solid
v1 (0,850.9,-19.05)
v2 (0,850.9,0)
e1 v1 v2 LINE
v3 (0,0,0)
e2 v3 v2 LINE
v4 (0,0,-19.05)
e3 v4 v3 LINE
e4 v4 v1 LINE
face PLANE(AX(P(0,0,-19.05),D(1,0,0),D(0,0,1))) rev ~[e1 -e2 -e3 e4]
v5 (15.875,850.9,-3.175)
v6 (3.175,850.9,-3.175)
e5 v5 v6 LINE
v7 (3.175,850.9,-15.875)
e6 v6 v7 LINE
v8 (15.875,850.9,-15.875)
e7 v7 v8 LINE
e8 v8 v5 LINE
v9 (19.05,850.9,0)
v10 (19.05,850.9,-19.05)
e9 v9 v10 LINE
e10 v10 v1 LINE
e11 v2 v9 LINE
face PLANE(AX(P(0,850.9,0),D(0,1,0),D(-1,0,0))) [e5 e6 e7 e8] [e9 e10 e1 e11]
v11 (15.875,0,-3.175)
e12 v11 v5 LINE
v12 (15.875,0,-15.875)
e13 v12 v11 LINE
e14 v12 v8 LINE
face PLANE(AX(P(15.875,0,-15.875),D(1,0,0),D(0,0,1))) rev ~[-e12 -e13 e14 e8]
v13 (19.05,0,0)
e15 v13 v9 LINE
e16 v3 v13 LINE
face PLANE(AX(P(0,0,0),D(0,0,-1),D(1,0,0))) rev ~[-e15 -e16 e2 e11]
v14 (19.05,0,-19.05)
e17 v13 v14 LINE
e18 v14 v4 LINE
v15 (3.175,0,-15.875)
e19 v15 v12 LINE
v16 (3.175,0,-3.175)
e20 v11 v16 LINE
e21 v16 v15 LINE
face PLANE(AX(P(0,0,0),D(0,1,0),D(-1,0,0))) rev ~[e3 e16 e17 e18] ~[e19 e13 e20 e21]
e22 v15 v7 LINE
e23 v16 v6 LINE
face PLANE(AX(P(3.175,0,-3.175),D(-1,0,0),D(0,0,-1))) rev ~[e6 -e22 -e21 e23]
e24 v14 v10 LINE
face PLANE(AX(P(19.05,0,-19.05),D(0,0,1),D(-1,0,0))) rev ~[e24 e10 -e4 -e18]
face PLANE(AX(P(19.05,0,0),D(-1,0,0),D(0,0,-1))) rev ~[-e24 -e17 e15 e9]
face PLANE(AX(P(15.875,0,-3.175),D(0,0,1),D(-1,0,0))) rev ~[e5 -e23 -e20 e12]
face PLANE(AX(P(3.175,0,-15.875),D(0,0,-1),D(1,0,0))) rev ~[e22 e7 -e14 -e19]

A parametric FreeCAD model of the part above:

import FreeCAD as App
import Part
import Sketcher

V = App.Vector
Q = App.Units.Quantity

doc = App.newDocument("Part")
params = doc.addObject("Spreadsheet::Sheet", "Params")
for row, (alias, value) in enumerate([
    ("sketch1_width", "0.75 in"),
    ("sketch1_width2", "0.5 in"),
    ("pad1_length", "33.5 in"),
], start=1):
    params.set(f"A{row}", alias)
    params.set(f"B{row}", "=" + value)
    params.setAlias(f"B{row}", alias)

body = doc.addObject("PartDesign::Body", "Body")

sketch1 = body.newObject("Sketcher::SketchObject", "Sketch")
sketch1.AttachmentSupport = (doc.getObject("XZ_Plane"), [""])
sketch1.MapMode = "FlatFace"
sketch1.addGeometry([
    Part.LineSegment(V(0, -19.05, 0), V(0, 0, 0)),
    Part.LineSegment(V(0, 0, 0), V(19.05, 0, 0)),
    Part.LineSegment(V(19.05, 0, 0), V(19.05, -19.05, 0)),
    Part.LineSegment(V(19.05, -19.05, 0), V(0, -19.05, 0)),
    Part.LineSegment(V(3.175, -3.175, 0), V(3.175, -15.875, 0)),
    Part.LineSegment(V(3.175, -15.875, 0), V(15.875, -15.875, 0)),
    Part.LineSegment(V(15.875, -15.875, 0), V(15.875, -3.175, 0)),
    Part.LineSegment(V(15.875, -3.175, 0), V(3.175, -3.175, 0)),
], False)
sketch1.addConstraint([
    Sketcher.Constraint("Coincident", 0, 2, 1, 1),
    Sketcher.Constraint("Coincident", 1, 2, 2, 1),
    Sketcher.Constraint("Coincident", 2, 2, 3, 1),
    Sketcher.Constraint("Coincident", 3, 2, 0, 1),
    Sketcher.Constraint("Coincident", 4, 2, 5, 1),
    Sketcher.Constraint("Coincident", 5, 2, 6, 1),
    Sketcher.Constraint("Coincident", 6, 2, 7, 1),
    Sketcher.Constraint("Coincident", 7, 2, 4, 1),
    Sketcher.Constraint("Vertical", 0),
    Sketcher.Constraint("Horizontal", 1),
    Sketcher.Constraint("Vertical", 2),
    Sketcher.Constraint("Horizontal", 3),
    Sketcher.Constraint("Vertical", 4),
    Sketcher.Constraint("Horizontal", 5),
    Sketcher.Constraint("Vertical", 6),
    Sketcher.Constraint("Horizontal", 7),
    Sketcher.Constraint("Coincident", 0, 2, -1, 1),
    Sketcher.Constraint("Equal", 3, 0),
    Sketcher.Constraint("Equal", 7, 4),
    Sketcher.Constraint("DistanceX", 1, 1, 1, 2, Q("0.75 in")),
    Sketcher.Constraint("DistanceX", 5, 1, 5, 2, Q("0.5 in")),
    Sketcher.Constraint("DistanceX", -1, 1, 4, 2, Q("0.125 in")),
    Sketcher.Constraint("DistanceY", 6, 2, -1, 1, Q("0.125 in")),
])
sketch1.setExpression("Constraints[19]", "Params.sketch1_width")
sketch1.setExpression("Constraints[20]", "Params.sketch1_width2")
pad1 = body.newObject("PartDesign::Pad", "Pad")
pad1.Profile = sketch1
pad1.setExpression("Length", "Params.pad1_length")
pad1.Reversed = True

doc.recompute()
